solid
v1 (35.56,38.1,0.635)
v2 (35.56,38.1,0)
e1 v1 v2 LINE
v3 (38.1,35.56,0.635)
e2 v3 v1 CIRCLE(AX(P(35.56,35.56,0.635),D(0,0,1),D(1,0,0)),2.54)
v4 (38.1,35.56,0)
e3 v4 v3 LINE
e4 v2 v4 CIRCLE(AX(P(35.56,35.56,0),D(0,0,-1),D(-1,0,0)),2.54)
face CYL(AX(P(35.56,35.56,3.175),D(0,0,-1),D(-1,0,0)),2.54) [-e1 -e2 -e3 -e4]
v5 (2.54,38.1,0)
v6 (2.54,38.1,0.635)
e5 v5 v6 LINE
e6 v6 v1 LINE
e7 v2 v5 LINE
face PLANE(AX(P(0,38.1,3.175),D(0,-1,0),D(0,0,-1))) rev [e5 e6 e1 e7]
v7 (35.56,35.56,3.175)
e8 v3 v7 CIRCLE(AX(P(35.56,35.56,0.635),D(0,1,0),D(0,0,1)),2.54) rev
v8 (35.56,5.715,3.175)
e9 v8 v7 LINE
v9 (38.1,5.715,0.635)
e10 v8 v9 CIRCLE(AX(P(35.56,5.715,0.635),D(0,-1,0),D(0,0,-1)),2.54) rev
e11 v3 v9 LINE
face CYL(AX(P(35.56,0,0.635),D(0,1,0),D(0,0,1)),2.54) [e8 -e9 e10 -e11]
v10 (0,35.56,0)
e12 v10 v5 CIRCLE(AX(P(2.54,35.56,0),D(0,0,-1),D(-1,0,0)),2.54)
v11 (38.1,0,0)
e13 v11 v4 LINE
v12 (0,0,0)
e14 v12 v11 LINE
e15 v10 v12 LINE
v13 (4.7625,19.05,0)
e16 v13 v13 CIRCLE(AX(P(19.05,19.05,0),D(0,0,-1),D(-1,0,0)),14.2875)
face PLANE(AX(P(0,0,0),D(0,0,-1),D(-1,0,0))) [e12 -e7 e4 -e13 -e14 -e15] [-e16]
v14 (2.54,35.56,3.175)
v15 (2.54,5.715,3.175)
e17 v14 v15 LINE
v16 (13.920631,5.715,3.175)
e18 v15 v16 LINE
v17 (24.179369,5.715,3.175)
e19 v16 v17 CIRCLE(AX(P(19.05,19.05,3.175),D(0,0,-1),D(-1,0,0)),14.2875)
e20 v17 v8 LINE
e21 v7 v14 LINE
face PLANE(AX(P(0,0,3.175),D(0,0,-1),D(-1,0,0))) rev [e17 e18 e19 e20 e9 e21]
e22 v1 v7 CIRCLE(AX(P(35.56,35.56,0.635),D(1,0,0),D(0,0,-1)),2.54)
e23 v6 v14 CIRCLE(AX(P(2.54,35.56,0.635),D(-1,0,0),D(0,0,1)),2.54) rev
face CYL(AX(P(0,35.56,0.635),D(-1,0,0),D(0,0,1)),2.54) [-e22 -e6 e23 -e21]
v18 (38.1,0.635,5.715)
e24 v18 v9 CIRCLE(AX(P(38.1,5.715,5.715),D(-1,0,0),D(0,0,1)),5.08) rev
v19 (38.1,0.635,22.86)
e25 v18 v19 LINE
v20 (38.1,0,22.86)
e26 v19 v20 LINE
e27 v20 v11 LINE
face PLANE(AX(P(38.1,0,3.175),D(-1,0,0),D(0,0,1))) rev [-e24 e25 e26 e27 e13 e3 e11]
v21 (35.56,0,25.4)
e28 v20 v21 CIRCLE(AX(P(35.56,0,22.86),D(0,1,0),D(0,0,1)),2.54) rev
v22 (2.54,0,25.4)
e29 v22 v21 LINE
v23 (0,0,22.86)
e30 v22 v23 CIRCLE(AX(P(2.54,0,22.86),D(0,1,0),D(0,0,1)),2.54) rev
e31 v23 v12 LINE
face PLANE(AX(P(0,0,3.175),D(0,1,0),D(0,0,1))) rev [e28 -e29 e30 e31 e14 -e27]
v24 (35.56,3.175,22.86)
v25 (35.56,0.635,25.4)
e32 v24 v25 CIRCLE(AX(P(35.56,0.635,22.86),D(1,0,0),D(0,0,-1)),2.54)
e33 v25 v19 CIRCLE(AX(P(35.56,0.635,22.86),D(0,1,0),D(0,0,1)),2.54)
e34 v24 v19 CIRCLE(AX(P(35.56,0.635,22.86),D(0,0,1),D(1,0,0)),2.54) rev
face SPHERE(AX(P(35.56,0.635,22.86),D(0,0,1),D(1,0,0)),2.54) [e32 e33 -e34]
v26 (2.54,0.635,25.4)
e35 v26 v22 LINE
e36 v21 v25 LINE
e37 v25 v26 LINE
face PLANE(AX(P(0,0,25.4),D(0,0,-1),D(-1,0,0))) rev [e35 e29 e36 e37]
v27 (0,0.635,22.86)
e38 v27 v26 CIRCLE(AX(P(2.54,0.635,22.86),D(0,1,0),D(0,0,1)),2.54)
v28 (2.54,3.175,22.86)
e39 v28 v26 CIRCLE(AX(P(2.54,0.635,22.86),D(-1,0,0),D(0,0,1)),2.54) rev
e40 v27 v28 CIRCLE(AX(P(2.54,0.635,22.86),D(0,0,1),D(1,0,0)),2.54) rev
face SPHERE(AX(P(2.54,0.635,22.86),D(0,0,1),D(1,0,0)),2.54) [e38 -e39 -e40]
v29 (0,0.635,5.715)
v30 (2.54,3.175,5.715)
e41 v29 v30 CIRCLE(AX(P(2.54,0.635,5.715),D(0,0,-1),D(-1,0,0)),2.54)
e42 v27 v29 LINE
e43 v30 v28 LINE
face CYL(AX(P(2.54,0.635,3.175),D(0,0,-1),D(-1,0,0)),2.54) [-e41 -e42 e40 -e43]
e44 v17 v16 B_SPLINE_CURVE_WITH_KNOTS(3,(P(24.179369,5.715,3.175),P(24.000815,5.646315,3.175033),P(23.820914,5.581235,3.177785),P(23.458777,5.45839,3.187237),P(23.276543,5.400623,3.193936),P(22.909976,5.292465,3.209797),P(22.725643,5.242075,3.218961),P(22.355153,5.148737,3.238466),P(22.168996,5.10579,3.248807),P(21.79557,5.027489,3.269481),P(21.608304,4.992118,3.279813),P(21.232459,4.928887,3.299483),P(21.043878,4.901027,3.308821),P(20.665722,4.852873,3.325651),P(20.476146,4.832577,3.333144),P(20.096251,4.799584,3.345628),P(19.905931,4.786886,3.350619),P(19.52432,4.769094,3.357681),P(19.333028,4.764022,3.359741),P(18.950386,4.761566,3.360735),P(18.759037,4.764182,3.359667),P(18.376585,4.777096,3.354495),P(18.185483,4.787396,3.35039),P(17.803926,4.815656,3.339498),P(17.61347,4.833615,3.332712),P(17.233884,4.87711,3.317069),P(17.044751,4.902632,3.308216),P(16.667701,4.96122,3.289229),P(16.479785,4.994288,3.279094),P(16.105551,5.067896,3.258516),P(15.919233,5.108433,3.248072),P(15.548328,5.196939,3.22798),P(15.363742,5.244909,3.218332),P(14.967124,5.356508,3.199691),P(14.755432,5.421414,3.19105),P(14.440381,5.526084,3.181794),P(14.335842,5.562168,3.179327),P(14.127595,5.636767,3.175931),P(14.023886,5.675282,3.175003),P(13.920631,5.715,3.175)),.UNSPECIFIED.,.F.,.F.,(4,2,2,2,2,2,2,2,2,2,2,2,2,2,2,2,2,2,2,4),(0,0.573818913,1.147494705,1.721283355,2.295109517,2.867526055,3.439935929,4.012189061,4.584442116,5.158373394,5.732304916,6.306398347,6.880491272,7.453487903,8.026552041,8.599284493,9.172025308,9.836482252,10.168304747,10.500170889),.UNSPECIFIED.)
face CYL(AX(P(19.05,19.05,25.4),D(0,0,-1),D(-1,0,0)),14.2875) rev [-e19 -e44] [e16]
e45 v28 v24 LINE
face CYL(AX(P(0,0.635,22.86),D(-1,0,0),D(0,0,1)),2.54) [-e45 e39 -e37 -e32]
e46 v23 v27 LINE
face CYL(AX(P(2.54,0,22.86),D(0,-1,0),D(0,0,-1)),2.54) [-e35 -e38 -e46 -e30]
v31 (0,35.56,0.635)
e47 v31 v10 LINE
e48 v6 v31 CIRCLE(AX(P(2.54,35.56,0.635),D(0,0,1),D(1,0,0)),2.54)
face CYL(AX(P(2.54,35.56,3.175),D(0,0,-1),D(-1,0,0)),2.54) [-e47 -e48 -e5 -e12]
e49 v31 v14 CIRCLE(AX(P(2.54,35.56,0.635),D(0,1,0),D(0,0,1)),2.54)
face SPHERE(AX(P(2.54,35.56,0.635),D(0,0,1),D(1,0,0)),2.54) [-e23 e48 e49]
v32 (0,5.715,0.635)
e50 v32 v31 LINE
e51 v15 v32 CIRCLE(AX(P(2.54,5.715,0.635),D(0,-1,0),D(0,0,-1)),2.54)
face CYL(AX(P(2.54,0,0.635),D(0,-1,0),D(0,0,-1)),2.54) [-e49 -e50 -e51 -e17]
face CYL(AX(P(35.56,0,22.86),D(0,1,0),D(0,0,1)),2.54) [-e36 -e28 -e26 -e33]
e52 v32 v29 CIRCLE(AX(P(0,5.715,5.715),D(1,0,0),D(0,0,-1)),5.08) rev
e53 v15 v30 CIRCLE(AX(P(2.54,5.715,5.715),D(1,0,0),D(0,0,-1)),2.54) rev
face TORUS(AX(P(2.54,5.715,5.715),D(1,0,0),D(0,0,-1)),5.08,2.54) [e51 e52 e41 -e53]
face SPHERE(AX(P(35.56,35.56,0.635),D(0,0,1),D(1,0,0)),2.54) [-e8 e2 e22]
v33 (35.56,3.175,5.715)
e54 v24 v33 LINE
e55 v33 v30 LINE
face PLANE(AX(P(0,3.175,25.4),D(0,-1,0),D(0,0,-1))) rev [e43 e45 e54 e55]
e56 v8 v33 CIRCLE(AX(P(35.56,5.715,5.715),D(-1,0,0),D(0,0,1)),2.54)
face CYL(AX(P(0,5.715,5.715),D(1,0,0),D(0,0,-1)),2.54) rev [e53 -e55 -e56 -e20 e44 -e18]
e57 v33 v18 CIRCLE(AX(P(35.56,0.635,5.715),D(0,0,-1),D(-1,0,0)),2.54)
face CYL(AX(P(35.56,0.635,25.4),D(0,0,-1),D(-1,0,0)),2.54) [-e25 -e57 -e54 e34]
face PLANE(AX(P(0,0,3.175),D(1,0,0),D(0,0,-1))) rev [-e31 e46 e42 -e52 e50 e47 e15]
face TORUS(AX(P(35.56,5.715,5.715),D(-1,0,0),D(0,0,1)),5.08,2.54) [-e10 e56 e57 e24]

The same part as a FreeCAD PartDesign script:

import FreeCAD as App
import Part
import Sketcher

V = App.Vector
Q = App.Units.Quantity


def edges_at(feature, points):
    """Names of the edges that pass closest to the given points."""
    edges = feature.Shape.Edges
    near = lambda p: min(range(len(edges)), key=lambda i: edges[i].distToShape(Part.Vertex(*p))[0])
    return sorted({f"Edge{near(p) + 1}" for p in points})

doc = App.newDocument("Part")
body = doc.addObject("PartDesign::Body", "Body")

sketch1 = body.newObject("Sketcher::SketchObject", "Sketch")
sketch1.AttachmentSupport = (doc.getObject("XY_Plane"), [""])
sketch1.MapMode = "FlatFace"
sketch1.addGeometry(Part.LineSegment(V(0, 38, 0), V(0, 0, 0)), False)
sketch1.addGeometry(Part.LineSegment(V(0, 0, 0), V(38, 0, 0)), False)
sketch1.addGeometry(Part.LineSegment(V(38, 0, 0), V(38, 38, 0)), False)
sketch1.addGeometry(Part.LineSegment(V(38, 38, 0), V(0, 38, 0)), False)
sketch1.addConstraint(Sketcher.Constraint("Coincident", 0, 2, 1, 1))
sketch1.addConstraint(Sketcher.Constraint("Coincident", 1, 2, 2, 1))
sketch1.addConstraint(Sketcher.Constraint("Coincident", 2, 2, 3, 1))
sketch1.addConstraint(Sketcher.Constraint("Coincident", 3, 2, 0, 1))
sketch1.addConstraint(Sketcher.Constraint("Vertical", 0))
sketch1.addConstraint(Sketcher.Constraint("Horizontal", 1))
sketch1.addConstraint(Sketcher.Constraint("Vertical", 2))
sketch1.addConstraint(Sketcher.Constraint("Horizontal", 3))
sketch1.addConstraint(Sketcher.Constraint("Coincident", 0, 2, -1, 1))
sketch1.addConstraint(Sketcher.Constraint("Equal", 3, 0))
sketch1.addConstraint(Sketcher.Constraint("DistanceX", 1, 1, 1, 2, Q("1.5 in")))
pad1 = body.newObject("PartDesign::Pad", "Pad")
pad1.Profile = sketch1
pad1.Length = Q("0.125 in")

sketch2 = body.newObject("Sketcher::SketchObject", "Sketch001")
sketch2.AttachmentSupport = (doc.getObject("XY_Plane"), [""])
sketch2.MapMode = "FlatFace"
sketch2.AttachmentOffset = App.Placement(V(0, 0, 0.125 * 25.4), App.Rotation())
sketch2.addGeometry(Part.LineSegment(V(0, 3.2, 0), V(0, 0, 0)), False)
sketch2.addGeometry(Part.LineSegment(V(0, 0, 0), V(38.1, 0, 0)), False)
sketch2.addGeometry(Part.LineSegment(V(38.1, 0, 0), V(38.1, 3.2, 0)), False)
sketch2.addGeometry(Part.LineSegment(V(38.1, 3.2, 0), V(0, 3.2, 0)), False)
sketch2.addConstraint(Sketcher.Constraint("Coincident", 0, 2, 1, 1))
sketch2.addConstraint(Sketcher.Constraint("Coincident", 1, 2, 2, 1))
sketch2.addConstraint(Sketcher.Constraint("Coincident", 2, 2, 3, 1))
sketch2.addConstraint(Sketcher.Constraint("Coincident", 3, 2, 0, 1))
sketch2.addConstraint(Sketcher.Constraint("Vertical", 0))
sketch2.addConstraint(Sketcher.Constraint("Horizontal", 1))
sketch2.addConstraint(Sketcher.Constraint("Vertical", 2))
sketch2.addConstraint(Sketcher.Constraint("Horizontal", 3))
sketch2.addConstraint(Sketcher.Constraint("Coincident", 0, 2, -1, 1))
sketch2.addConstraint(Sketcher.Constraint("DistanceX", 1, 1, 1, 2, Q("1.5 in")))
sketch2.addConstraint(Sketcher.Constraint("DistanceY", 0, 2, 0, 1, Q("0.125 in")))
pad2 = body.newObject("PartDesign::Pad", "Pad001")
pad2.Profile = sketch2
pad2.Length = Q("0.875 in")
doc.recompute()

fillet = body.newObject("PartDesign::Fillet", "Fillet")
fillet.Base = (pad2, edges_at(pad2, [
    (19.05, 38.1, 3.175),
    (38.1, 20.637, 3.175),
    (0, 3.175, 14.287),
    (19.05, 3.175, 3.175),
    (38.1, 3.175, 14.287),
    (0, 1.587, 25.4),
    (38.1, 1.587, 25.4),
    (19.05, 3.175, 25.4),
    (0, 20.637, 3.175),
    (0, 38.1, 1.587),
    (38.1, 38.1, 1.587),
]))
fillet.Radius = Q("0.1 in")

sketch3 = body.newObject("Sketcher::SketchObject", "Sketch002")
sketch3.AttachmentSupport = (doc.getObject("XY_Plane"), [""])
sketch3.MapMode = "FlatFace"
sketch3.addGeometry(Part.Circle(V(19, 19, 0), V(0, 0, 1), 14), False)
sketch3.addConstraint(Sketcher.Constraint("Diameter", 0, Q("1.125 in")))
sketch3.addConstraint(Sketcher.Constraint("DistanceX", -1, 1, 0, 3, Q("0.75 in")))
sketch3.addConstraint(Sketcher.Constraint("DistanceY", -1, 1, 0, 3, Q("0.75 in")))
pocket1 = body.newObject("PartDesign::Pocket", "Pocket")
pocket1.Profile = sketch3
pocket1.Type = "ThroughAll"
pocket1.Reversed = True

doc.recompute()
